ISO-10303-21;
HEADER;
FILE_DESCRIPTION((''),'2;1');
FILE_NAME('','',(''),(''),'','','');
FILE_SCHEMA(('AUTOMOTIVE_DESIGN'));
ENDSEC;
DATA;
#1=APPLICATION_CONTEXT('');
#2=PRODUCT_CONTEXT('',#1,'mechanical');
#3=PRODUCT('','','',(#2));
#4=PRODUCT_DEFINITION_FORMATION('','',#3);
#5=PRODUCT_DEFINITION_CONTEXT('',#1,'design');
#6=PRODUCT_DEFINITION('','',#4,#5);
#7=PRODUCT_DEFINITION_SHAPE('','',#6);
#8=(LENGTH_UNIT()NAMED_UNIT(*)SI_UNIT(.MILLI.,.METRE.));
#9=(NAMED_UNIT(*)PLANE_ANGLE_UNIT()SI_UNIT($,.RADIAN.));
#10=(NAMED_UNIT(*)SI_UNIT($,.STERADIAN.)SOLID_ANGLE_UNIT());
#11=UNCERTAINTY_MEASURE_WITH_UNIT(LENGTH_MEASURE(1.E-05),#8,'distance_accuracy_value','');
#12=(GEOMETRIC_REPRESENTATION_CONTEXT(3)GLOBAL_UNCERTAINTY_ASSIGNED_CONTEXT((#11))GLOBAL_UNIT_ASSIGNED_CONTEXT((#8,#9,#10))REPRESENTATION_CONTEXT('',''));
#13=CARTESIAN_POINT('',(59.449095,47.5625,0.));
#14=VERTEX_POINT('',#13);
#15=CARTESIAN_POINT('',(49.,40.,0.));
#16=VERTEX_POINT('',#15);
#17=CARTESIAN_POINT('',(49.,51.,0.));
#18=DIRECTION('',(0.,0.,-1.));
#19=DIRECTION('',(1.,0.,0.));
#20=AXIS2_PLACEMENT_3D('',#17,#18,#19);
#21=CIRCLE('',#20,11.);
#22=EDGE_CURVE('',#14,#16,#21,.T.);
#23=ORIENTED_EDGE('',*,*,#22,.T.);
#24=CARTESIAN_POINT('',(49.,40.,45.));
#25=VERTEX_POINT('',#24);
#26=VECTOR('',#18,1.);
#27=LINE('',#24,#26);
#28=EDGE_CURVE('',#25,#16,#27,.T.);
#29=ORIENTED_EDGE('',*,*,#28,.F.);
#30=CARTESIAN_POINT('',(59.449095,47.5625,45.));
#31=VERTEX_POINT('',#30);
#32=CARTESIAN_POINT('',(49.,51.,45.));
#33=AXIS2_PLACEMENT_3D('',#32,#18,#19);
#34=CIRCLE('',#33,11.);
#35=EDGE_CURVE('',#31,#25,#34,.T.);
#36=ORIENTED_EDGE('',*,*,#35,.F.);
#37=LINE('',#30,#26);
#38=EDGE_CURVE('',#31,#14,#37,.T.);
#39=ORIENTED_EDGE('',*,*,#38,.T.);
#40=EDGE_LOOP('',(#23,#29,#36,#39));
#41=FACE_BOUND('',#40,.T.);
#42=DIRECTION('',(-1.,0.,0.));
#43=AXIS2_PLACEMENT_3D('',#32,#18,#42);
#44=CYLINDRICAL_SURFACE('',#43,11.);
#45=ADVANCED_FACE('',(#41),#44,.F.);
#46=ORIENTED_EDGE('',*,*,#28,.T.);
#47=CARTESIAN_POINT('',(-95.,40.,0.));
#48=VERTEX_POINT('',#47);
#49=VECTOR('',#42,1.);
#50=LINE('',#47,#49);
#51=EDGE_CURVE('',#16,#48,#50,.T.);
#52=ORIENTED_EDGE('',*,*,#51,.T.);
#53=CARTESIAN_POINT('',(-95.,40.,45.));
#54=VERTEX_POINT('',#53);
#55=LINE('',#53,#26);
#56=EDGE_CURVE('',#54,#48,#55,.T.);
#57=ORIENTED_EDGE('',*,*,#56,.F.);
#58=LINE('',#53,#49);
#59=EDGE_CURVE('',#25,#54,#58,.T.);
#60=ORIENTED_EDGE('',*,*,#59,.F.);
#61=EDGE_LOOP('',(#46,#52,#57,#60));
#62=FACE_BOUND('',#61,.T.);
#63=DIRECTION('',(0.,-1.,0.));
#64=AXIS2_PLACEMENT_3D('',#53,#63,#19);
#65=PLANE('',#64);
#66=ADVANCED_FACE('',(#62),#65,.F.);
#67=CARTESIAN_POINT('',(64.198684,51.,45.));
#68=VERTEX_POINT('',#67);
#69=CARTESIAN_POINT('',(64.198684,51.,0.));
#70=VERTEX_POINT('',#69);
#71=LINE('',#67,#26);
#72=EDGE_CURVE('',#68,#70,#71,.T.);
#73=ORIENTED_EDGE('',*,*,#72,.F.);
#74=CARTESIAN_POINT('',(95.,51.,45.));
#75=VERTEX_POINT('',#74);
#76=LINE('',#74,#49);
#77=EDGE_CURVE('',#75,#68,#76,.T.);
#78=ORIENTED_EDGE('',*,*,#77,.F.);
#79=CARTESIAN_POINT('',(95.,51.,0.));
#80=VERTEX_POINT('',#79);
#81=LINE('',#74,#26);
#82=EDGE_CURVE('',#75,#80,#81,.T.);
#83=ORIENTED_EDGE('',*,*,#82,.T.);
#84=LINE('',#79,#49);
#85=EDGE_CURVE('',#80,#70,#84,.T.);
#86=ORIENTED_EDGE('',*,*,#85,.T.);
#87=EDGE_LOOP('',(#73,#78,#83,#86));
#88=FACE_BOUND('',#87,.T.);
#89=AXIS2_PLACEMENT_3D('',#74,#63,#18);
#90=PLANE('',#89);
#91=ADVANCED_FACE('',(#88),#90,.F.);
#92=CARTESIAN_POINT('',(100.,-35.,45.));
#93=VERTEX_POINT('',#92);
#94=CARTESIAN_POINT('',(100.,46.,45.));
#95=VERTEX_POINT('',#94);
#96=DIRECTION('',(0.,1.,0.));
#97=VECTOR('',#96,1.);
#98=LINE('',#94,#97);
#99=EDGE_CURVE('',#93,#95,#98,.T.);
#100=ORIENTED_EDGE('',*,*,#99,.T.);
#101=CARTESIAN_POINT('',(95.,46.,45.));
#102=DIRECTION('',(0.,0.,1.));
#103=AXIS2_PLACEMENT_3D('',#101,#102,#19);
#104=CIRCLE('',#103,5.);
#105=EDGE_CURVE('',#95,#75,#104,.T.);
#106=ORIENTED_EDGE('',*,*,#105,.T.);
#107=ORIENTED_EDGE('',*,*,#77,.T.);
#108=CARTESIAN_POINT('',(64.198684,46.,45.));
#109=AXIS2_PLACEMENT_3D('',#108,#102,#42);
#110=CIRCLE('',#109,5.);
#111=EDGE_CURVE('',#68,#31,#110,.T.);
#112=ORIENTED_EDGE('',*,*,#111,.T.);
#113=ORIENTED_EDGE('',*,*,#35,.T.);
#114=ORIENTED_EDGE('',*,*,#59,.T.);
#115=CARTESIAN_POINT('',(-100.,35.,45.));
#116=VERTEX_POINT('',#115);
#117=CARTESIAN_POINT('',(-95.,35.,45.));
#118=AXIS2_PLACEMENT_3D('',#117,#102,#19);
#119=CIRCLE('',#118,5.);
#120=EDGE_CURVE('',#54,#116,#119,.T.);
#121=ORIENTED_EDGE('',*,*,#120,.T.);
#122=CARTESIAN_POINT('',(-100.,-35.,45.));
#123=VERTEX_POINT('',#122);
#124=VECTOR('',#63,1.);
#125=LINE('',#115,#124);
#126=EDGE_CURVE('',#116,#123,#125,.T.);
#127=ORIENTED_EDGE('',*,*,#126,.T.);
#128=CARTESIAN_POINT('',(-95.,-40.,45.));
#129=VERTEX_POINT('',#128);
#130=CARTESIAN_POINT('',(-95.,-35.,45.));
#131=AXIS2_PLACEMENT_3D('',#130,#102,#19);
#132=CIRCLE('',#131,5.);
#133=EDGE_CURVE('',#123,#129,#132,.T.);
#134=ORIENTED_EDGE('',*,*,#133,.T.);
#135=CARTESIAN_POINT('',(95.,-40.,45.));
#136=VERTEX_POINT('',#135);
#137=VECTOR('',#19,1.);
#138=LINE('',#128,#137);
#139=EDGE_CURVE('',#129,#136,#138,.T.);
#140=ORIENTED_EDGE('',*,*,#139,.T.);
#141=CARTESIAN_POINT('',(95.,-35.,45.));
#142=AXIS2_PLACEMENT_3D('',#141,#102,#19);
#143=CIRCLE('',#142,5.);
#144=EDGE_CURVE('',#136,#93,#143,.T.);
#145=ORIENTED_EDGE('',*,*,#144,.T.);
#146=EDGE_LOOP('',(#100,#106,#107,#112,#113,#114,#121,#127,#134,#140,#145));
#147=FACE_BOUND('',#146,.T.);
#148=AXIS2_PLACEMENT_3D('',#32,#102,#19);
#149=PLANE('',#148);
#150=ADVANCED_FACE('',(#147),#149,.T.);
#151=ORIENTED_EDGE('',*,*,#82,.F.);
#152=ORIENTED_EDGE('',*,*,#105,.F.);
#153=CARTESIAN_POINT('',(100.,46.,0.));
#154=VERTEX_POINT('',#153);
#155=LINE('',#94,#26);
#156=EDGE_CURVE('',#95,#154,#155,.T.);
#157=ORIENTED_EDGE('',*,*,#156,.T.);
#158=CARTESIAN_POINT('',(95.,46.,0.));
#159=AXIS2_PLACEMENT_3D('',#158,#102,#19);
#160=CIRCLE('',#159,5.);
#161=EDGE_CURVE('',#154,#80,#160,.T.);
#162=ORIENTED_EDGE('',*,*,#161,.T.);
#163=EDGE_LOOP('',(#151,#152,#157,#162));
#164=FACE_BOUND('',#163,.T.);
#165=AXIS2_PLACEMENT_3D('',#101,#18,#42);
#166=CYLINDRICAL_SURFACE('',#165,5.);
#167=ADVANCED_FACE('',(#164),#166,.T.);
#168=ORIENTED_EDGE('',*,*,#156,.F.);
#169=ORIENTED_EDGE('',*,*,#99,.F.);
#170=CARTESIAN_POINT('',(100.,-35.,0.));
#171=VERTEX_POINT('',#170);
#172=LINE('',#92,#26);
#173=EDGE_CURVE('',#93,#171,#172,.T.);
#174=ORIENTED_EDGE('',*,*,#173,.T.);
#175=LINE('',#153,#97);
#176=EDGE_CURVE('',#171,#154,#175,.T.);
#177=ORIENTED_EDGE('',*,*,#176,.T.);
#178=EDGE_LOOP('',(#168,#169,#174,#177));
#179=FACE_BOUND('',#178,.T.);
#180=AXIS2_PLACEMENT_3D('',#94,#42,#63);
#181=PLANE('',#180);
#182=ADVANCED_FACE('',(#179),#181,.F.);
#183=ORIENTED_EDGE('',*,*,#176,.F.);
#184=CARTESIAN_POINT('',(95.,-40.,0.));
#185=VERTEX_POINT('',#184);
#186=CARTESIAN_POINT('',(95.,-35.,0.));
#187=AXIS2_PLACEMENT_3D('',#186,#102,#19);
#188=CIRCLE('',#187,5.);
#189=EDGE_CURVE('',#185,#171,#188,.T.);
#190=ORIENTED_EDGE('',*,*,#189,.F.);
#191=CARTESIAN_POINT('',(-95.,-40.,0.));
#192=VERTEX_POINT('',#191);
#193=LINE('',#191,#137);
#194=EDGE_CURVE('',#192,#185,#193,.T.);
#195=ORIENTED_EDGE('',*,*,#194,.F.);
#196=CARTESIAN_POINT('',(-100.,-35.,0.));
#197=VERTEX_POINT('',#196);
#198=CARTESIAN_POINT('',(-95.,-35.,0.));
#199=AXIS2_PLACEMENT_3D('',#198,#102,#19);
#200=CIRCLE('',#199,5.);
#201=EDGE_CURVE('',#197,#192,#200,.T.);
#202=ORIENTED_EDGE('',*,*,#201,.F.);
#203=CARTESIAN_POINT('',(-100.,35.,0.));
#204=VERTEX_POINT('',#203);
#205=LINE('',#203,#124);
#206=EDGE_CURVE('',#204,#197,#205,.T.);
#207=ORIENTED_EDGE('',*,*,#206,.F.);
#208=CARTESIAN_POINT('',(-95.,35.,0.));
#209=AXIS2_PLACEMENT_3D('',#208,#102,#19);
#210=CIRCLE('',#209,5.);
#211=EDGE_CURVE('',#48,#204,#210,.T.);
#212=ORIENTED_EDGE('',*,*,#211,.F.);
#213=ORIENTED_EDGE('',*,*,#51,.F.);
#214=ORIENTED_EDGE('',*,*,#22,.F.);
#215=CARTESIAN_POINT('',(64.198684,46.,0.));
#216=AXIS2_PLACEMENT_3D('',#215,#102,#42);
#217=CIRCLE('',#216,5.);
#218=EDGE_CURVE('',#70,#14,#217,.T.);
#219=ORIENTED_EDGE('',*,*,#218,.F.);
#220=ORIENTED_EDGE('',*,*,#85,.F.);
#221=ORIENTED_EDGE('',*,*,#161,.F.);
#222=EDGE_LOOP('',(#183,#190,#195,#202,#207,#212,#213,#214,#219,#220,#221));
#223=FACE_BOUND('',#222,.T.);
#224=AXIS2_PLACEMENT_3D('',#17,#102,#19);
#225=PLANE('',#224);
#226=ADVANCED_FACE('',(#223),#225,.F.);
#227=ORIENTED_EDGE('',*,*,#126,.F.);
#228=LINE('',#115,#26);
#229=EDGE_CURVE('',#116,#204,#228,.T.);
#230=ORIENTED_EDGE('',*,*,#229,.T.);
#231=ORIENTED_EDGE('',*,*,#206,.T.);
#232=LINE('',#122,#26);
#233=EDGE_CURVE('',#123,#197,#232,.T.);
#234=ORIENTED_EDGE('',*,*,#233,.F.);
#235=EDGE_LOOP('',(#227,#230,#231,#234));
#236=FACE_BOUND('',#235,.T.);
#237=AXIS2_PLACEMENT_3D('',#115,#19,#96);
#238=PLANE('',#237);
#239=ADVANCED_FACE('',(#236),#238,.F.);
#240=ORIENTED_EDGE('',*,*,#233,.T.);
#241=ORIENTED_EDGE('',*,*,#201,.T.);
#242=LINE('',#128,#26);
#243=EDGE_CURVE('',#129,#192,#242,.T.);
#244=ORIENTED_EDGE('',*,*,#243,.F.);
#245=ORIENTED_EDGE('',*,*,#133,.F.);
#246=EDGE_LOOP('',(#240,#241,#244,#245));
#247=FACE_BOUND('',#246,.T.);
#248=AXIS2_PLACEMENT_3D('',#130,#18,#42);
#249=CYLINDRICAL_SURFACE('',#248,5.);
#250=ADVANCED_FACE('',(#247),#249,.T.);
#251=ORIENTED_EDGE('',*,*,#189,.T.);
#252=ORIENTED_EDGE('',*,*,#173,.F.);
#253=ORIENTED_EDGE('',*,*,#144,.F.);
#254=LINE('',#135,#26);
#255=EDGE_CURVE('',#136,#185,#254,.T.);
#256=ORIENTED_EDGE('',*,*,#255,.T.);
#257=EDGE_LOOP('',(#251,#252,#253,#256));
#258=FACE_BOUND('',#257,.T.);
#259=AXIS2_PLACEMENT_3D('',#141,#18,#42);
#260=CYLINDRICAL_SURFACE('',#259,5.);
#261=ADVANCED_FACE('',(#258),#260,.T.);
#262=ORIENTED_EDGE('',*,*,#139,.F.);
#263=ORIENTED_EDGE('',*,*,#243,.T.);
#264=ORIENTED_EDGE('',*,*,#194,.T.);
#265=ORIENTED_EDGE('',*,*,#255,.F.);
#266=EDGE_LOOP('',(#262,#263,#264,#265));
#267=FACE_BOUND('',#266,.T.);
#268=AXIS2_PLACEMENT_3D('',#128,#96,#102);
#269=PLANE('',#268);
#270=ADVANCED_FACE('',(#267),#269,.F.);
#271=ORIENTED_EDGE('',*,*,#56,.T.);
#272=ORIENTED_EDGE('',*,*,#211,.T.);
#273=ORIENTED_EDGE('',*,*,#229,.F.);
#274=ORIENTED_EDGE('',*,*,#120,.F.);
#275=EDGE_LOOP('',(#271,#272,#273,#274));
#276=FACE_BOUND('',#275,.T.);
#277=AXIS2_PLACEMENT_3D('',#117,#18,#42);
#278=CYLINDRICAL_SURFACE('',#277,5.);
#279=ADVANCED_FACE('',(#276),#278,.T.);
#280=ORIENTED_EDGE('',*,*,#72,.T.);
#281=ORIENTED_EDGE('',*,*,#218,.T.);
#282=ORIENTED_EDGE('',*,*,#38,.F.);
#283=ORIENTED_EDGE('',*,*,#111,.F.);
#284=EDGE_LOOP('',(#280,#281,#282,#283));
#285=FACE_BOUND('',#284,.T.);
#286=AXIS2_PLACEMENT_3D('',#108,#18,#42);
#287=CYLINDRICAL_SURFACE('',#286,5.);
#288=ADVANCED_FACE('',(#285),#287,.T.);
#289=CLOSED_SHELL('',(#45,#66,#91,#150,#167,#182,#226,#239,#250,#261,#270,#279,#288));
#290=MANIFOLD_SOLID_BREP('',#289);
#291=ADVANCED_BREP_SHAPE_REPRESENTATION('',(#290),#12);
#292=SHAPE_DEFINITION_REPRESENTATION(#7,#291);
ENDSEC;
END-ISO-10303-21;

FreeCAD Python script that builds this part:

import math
import FreeCAD as App
import Part
import Sketcher

V = App.Vector

doc = App.newDocument("Part")
body = doc.addObject("PartDesign::Body", "Body")

# Sketch on XY plane
sketch1 = body.newObject("Sketcher::SketchObject", "Sketch")
sketch1.AttachmentSupport = (doc.getObject("XY_Plane"), [""])
sketch1.MapMode = "FlatFace"
sketch1.addGeometry([
    Part.LineSegment(V(49, 40, 0), V(-95, 40, 0)),  # 0
    Part.ArcOfCircle(Part.Circle(V(-95, 35, 0), V(0, 0, 1), 5), math.radians(90), math.radians(180)),  # 1
    Part.LineSegment(V(-100, 35, 0), V(-100, -35, 0)),  # 2
    Part.ArcOfCircle(Part.Circle(V(-95, -35, 0), V(0, 0, 1), 5), math.radians(180), math.radians(270)),  # 3
    Part.LineSegment(V(-95, -40, 0), V(95, -40, 0)),  # 4
    Part.ArcOfCircle(Part.Circle(V(95, -35, 0), V(0, 0, 1), 5), math.radians(-90), math.radians(0)),  # 5
    Part.LineSegment(V(100, -35, 0), V(100, 46, 0)),  # 6
    Part.ArcOfCircle(Part.Circle(V(95, 46, 0), V(0, 0, 1), 5), math.radians(0), math.radians(90)),  # 7
    Part.LineSegment(V(95, 51, 0), V(64.2, 51, 0)),  # 8
    Part.ArcOfCircle(Part.Circle(V(64.2, 46, 0), V(0, 0, 1), 5), math.radians(90), math.radians(162)),  # 9
    Part.ArcOfCircle(Part.Circle(V(49, 51, 0), V(0, 0, 1), 11), math.radians(-90), math.radians(-18)),  # 10
], False)
sketch1.addConstraint([
    Sketcher.Constraint("Tangent", 0, 2, 1, 1),
    Sketcher.Constraint("Tangent", 1, 2, 2, 1),
    Sketcher.Constraint("Tangent", 2, 2, 3, 1),
    Sketcher.Constraint("Tangent", 3, 2, 4, 1),
    Sketcher.Constraint("Tangent", 4, 2, 5, 1),
    Sketcher.Constraint("Tangent", 5, 2, 6, 1),
    Sketcher.Constraint("Tangent", 6, 2, 7, 1),
    Sketcher.Constraint("Tangent", 7, 2, 8, 1),
    Sketcher.Constraint("Tangent", 8, 2, 9, 1),
    Sketcher.Constraint("Tangent", 9, 2, 10, 2),
    Sketcher.Constraint("Tangent", 10, 1, 0, 1),
    Sketcher.Constraint("Horizontal", 0),
    Sketcher.Constraint("Vertical", 2),
    Sketcher.Constraint("Horizontal", 4),
    Sketcher.Constraint("Vertical", 6),
    Sketcher.Constraint("Horizontal", 8),
    Sketcher.Constraint("Equal", 1, 3),
    Sketcher.Constraint("Equal", 3, 5),
    Sketcher.Constraint("Equal", 5, 7),
    Sketcher.Constraint("Equal", 7, 9),
    Sketcher.Constraint("Symmetric", 1, 3, 5, 3, -1, 1),
    Sketcher.Constraint("Horizontal", 10, 3, 7, 2),
    Sketcher.Constraint("Radius", 1, 5.0),
    Sketcher.Constraint("Radius", 10, 11.0),
    Sketcher.Constraint("DistanceX", 0, 2, 0, 1, 144.0),
    Sketcher.Constraint("DistanceX", 4, 1, 4, 2, 190.0),
    Sketcher.Constraint("DistanceY", 2, 2, 2, 1, 70.0),
])
pad1 = body.newObject("PartDesign::Pad", "Pad")
pad1.Profile = sketch1
pad1.Length = 45

doc.recompute()
